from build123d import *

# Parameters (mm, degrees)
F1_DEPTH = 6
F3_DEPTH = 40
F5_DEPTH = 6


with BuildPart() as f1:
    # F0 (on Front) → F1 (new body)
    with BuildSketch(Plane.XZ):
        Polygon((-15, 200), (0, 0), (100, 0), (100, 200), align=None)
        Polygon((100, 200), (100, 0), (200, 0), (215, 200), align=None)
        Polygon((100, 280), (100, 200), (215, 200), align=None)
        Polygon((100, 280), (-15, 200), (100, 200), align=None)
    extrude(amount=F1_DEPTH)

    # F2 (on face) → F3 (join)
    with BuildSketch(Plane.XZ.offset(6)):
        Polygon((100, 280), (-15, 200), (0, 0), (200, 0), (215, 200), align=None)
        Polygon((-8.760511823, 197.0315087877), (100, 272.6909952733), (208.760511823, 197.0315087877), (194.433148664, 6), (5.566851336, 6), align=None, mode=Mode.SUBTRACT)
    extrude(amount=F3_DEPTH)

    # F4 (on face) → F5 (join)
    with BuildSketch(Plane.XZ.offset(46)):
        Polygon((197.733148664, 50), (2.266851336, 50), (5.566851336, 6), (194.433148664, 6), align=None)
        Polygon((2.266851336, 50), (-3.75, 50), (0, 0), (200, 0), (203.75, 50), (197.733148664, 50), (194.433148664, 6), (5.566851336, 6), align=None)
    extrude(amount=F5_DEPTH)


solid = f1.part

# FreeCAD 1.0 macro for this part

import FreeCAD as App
import Part
import Sketcher
Q = App.Units.Quantity

doc = App.newDocument("Part")
params = doc.addObject("Spreadsheet::Sheet", "Params")
for row, (alias, value) in enumerate([
    ("sketch1_width", "200 mm"),
    ("pad1_length", "6 mm"),
    ("sketch2_width", "200 mm"),
    ("pad2_length", "40 mm"),
    ("sketch3_width", "200 mm"),
    ("sketch3_width2", "207.5 mm"),
    ("pad3_length", "6 mm"),
], start=1):
    params.set(f"A{row}", alias)
    params.set(f"B{row}", "=" + value)
    params.setAlias(f"B{row}", alias)

body = doc.addObject("PartDesign::Body", "Body")

sketch1 = body.newObject("Sketcher::SketchObject", "Sketch")
sketch1.AttachmentSupport = (doc.getObject("XZ_Plane"), [""])
sketch1.MapMode = "FlatFace"
sketch1.addGeometry([
    Part.LineSegment(App.Vector(-15, 200, 0), App.Vector(0, 0, 0)),
    Part.LineSegment(App.Vector(0, 0, 0), App.Vector(200, 0, 0)),
    Part.LineSegment(App.Vector(200, 0, 0), App.Vector(215, 200, 0)),
    Part.LineSegment(App.Vector(215, 200, 0), App.Vector(100, 280, 0)),
    Part.LineSegment(App.Vector(100, 280, 0), App.Vector(-15, 200, 0)),
], False)
sketch1.addConstraint([
    Sketcher.Constraint("Coincident", 0, 2, 1, 1),
    Sketcher.Constraint("Coincident", 1, 2, 2, 1),
    Sketcher.Constraint("Coincident", 2, 2, 3, 1),
    Sketcher.Constraint("Coincident", 3, 2, 4, 1),
    Sketcher.Constraint("Coincident", 4, 2, 0, 1),
    Sketcher.Constraint("Horizontal", 1),
    Sketcher.Constraint("Coincident", 0, 2, -1, 1),
    Sketcher.Constraint("Horizontal", 2, 2, 4, 2),
    Sketcher.Constraint("Equal", 0, 2),
    Sketcher.Constraint("Equal", 3, 4),
    Sketcher.Constraint("DistanceX", 1, 1, 1, 2, Q("200 mm")),
    Sketcher.Constraint("DistanceX", -1, 1, 2, 2, Q("215 mm")),
    Sketcher.Constraint("DistanceY", -1, 1, 2, 2, Q("200 mm")),
    Sketcher.Constraint("DistanceY", -1, 1, 3, 2, Q("280 mm")),
])
sketch1.setExpression("Constraints[10]", "Params.sketch1_width")
pad1 = body.newObject("PartDesign::Pad", "Pad")
pad1.Profile = sketch1
pad1.setExpression("Length", "Params.pad1_length")

sketch2 = body.newObject("Sketcher::SketchObject", "Sketch001")
sketch2.AttachmentSupport = (doc.getObject("XZ_Plane"), [""])
sketch2.MapMode = "FlatFace"
sketch2.AttachmentOffset = App.Placement(App.Vector(0, 0, 6), App.Rotation())
sketch2.addGeometry([
    Part.LineSegment(App.Vector(100, 280, 0), App.Vector(-15, 200, 0)),
    Part.LineSegment(App.Vector(-15, 200, 0), App.Vector(0, 0, 0)),
    Part.LineSegment(App.Vector(0, 0, 0), App.Vector(200, 0, 0)),
    Part.LineSegment(App.Vector(200, 0, 0), App.Vector(215, 200, 0)),
    Part.LineSegment(App.Vector(215, 200, 0), App.Vector(100, 280, 0)),
    Part.LineSegment(App.Vector(6, 6, 0), App.Vector(-9, 197, 0)),
    Part.LineSegment(App.Vector(-9, 197, 0), App.Vector(100, 273, 0)),
    Part.LineSegment(App.Vector(100, 273, 0), App.Vector(209, 197, 0)),
    Part.LineSegment(App.Vector(209, 197, 0), App.Vector(194, 6, 0)),
    Part.LineSegment(App.Vector(194, 6, 0), App.Vector(6, 6, 0)),
], False)
sketch2.addConstraint([
    Sketcher.Constraint("Coincident", 0, 2, 1, 1),
    Sketcher.Constraint("Coincident", 1, 2, 2, 1),
    Sketcher.Constraint("Coincident", 2, 2, 3, 1),
    Sketcher.Constraint("Coincident", 3, 2, 4, 1),
    Sketcher.Constraint("Coincident", 4, 2, 0, 1),
    Sketcher.Constraint("Coincident", 5, 2, 6, 1),
    Sketcher.Constraint("Coincident", 6, 2, 7, 1),
    Sketcher.Constraint("Coincident", 7, 2, 8, 1),
    Sketcher.Constraint("Coincident", 8, 2, 9, 1),
    Sketcher.Constraint("Coincident", 9, 2, 5, 1),
    Sketcher.Constraint("Horizontal", 2),
    Sketcher.Constraint("Horizontal", 9),
    Sketcher.Constraint("Coincident", 1, 2, -1, 1),
    Sketcher.Constraint("Parallel", 1, 5),
    Sketcher.Constraint("Parallel", 0, 6),
    Sketcher.Constraint("Parallel", 4, 7),
    Sketcher.Constraint("Parallel", 3, 8),
    Sketcher.Constraint("Horizontal", 0, 2, 3, 2),
    Sketcher.Constraint("Horizontal", 5, 2, 7, 2),
    Sketcher.Constraint("Vertical", 4, 2, 6, 2),
    Sketcher.Constraint("Equal", 1, 3),
    Sketcher.Constraint("Equal", 0, 4),
    Sketcher.Constraint("DistanceX", 2, 1, 2, 2, Q("200 mm")),
    Sketcher.Constraint("DistanceX", 0, 2, -1, 1, Q("15 mm")),
    Sketcher.Constraint("DistanceY", -1, 1, 0, 2, Q("200 mm")),
    Sketcher.Constraint("DistanceY", -1, 1, 4, 2, Q("280 mm")),
    Sketcher.Constraint("DistanceY", -1, 1, 8, 2, Q("6 mm")),
    Sketcher.Constraint("Distance", 5, Q("191.568031 mm")),
    Sketcher.Constraint("DistanceX", 9, 2, 9, 1, Q("188.866297 mm")),
])
sketch2.setExpression("Constraints[22]", "Params.sketch2_width")
pad2 = body.newObject("PartDesign::Pad", "Pad001")
pad2.Profile = sketch2
pad2.setExpression("Length", "Params.pad2_length")

sketch3 = body.newObject("Sketcher::SketchObject", "Sketch002")
sketch3.AttachmentSupport = (doc.getObject("XZ_Plane"), [""])
sketch3.MapMode = "FlatFace"
sketch3.AttachmentOffset = App.Placement(App.Vector(0, 0, 46), App.Rotation())
sketch3.addGeometry([
    Part.LineSegment(App.Vector(-4, 50, 0), App.Vector(0, 0, 0)),
    Part.LineSegment(App.Vector(0, 0, 0), App.Vector(200, 0, 0)),
    Part.LineSegment(App.Vector(200, 0, 0), App.Vector(204, 50, 0)),
    Part.LineSegment(App.Vector(204, 50, 0), App.Vector(-4, 50, 0)),
], False)
sketch3.addConstraint([
    Sketcher.Constraint("Coincident", 0, 2, 1, 1),
    Sketcher.Constraint("Coincident", 1, 2, 2, 1),
    Sketcher.Constraint("Coincident", 2, 2, 3, 1),
    Sketcher.Constraint("Coincident", 3, 2, 0, 1),
    Sketcher.Constraint("Horizontal", 1),
    Sketcher.Constraint("Horizontal", 3),
    Sketcher.Constraint("Coincident", 0, 2, -1, 1),
    Sketcher.Constraint("Equal", 0, 2),
    Sketcher.Constraint("DistanceX", 1, 1, 1, 2, Q("200 mm")),
    Sketcher.Constraint("DistanceX", 3, 2, 3, 1, Q("207.5 mm")),
    Sketcher.Constraint("DistanceY", -1, 1, 2, 2, Q("50 mm")),
])
sketch3.setExpression("Constraints[8]", "Params.sketch3_width")
sketch3.setExpression("Constraints[9]", "Params.sketch3_width2")
pad3 = body.newObject("PartDesign::Pad", "Pad002")
pad3.Profile = sketch3
pad3.setExpression("Length", "Params.pad3_length")

doc.recompute()
